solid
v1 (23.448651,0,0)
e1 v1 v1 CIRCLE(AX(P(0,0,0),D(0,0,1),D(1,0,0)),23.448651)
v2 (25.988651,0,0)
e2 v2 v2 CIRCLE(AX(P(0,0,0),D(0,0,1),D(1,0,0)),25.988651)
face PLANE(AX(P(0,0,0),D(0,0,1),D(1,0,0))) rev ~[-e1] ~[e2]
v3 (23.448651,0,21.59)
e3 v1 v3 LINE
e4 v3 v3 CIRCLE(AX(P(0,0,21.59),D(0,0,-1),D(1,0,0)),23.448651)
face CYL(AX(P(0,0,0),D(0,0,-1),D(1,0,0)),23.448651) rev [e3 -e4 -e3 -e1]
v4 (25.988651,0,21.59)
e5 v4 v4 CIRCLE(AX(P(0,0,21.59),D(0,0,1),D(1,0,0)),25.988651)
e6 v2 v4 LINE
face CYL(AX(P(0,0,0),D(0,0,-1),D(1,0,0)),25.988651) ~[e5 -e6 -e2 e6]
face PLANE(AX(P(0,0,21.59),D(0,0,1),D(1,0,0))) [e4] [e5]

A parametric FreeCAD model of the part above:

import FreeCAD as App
import Part
import Sketcher
from FreeCAD import Vector
Q = App.Units.Quantity

doc = App.newDocument("Part")
body = doc.addObject("PartDesign::Body", "Body")

# Sketch on XY plane
sketch1 = body.newObject("Sketcher::SketchObject", "Sketch")
sketch1.AttachmentSupport = (doc.getObject("XY_Plane"), [""])
sketch1.MapMode = "FlatFace"
sketch1.addGeometry(Part.Circle(Vector(0, 0, 0), Vector(0, 0, 1), 25.988651), False)
sketch1.addConstraint(Sketcher.Constraint("Coincident", 0, 3, -1, 1))
sketch1.addConstraint(Sketcher.Constraint("Diameter", 0, 51.977302))
pad1 = body.newObject("PartDesign::Pad", "Pad")
pad1.Profile = sketch1
pad1.Length = Q("0.85 in")

# Sketch on XY plane
sketch2 = body.newObject("Sketcher::SketchObject", "Sketch001")
sketch2.AttachmentSupport = (doc.getObject("XY_Plane"), [""])
sketch2.MapMode = "FlatFace"
sketch2.addGeometry(Part.Circle(Vector(0, 0, 0), Vector(0, 0, 1), 23.448651), False)
sketch2.addConstraint(Sketcher.Constraint("Coincident", 0, 3, -1, 1))
sketch2.addConstraint(Sketcher.Constraint("Diameter", 0, 46.897302))
pocket1 = body.newObject("PartDesign::Pocket", "Pocket")
pocket1.Profile = sketch2
pocket1.Type = "ThroughAll"
pocket1.Reversed = True

doc.recompute()
